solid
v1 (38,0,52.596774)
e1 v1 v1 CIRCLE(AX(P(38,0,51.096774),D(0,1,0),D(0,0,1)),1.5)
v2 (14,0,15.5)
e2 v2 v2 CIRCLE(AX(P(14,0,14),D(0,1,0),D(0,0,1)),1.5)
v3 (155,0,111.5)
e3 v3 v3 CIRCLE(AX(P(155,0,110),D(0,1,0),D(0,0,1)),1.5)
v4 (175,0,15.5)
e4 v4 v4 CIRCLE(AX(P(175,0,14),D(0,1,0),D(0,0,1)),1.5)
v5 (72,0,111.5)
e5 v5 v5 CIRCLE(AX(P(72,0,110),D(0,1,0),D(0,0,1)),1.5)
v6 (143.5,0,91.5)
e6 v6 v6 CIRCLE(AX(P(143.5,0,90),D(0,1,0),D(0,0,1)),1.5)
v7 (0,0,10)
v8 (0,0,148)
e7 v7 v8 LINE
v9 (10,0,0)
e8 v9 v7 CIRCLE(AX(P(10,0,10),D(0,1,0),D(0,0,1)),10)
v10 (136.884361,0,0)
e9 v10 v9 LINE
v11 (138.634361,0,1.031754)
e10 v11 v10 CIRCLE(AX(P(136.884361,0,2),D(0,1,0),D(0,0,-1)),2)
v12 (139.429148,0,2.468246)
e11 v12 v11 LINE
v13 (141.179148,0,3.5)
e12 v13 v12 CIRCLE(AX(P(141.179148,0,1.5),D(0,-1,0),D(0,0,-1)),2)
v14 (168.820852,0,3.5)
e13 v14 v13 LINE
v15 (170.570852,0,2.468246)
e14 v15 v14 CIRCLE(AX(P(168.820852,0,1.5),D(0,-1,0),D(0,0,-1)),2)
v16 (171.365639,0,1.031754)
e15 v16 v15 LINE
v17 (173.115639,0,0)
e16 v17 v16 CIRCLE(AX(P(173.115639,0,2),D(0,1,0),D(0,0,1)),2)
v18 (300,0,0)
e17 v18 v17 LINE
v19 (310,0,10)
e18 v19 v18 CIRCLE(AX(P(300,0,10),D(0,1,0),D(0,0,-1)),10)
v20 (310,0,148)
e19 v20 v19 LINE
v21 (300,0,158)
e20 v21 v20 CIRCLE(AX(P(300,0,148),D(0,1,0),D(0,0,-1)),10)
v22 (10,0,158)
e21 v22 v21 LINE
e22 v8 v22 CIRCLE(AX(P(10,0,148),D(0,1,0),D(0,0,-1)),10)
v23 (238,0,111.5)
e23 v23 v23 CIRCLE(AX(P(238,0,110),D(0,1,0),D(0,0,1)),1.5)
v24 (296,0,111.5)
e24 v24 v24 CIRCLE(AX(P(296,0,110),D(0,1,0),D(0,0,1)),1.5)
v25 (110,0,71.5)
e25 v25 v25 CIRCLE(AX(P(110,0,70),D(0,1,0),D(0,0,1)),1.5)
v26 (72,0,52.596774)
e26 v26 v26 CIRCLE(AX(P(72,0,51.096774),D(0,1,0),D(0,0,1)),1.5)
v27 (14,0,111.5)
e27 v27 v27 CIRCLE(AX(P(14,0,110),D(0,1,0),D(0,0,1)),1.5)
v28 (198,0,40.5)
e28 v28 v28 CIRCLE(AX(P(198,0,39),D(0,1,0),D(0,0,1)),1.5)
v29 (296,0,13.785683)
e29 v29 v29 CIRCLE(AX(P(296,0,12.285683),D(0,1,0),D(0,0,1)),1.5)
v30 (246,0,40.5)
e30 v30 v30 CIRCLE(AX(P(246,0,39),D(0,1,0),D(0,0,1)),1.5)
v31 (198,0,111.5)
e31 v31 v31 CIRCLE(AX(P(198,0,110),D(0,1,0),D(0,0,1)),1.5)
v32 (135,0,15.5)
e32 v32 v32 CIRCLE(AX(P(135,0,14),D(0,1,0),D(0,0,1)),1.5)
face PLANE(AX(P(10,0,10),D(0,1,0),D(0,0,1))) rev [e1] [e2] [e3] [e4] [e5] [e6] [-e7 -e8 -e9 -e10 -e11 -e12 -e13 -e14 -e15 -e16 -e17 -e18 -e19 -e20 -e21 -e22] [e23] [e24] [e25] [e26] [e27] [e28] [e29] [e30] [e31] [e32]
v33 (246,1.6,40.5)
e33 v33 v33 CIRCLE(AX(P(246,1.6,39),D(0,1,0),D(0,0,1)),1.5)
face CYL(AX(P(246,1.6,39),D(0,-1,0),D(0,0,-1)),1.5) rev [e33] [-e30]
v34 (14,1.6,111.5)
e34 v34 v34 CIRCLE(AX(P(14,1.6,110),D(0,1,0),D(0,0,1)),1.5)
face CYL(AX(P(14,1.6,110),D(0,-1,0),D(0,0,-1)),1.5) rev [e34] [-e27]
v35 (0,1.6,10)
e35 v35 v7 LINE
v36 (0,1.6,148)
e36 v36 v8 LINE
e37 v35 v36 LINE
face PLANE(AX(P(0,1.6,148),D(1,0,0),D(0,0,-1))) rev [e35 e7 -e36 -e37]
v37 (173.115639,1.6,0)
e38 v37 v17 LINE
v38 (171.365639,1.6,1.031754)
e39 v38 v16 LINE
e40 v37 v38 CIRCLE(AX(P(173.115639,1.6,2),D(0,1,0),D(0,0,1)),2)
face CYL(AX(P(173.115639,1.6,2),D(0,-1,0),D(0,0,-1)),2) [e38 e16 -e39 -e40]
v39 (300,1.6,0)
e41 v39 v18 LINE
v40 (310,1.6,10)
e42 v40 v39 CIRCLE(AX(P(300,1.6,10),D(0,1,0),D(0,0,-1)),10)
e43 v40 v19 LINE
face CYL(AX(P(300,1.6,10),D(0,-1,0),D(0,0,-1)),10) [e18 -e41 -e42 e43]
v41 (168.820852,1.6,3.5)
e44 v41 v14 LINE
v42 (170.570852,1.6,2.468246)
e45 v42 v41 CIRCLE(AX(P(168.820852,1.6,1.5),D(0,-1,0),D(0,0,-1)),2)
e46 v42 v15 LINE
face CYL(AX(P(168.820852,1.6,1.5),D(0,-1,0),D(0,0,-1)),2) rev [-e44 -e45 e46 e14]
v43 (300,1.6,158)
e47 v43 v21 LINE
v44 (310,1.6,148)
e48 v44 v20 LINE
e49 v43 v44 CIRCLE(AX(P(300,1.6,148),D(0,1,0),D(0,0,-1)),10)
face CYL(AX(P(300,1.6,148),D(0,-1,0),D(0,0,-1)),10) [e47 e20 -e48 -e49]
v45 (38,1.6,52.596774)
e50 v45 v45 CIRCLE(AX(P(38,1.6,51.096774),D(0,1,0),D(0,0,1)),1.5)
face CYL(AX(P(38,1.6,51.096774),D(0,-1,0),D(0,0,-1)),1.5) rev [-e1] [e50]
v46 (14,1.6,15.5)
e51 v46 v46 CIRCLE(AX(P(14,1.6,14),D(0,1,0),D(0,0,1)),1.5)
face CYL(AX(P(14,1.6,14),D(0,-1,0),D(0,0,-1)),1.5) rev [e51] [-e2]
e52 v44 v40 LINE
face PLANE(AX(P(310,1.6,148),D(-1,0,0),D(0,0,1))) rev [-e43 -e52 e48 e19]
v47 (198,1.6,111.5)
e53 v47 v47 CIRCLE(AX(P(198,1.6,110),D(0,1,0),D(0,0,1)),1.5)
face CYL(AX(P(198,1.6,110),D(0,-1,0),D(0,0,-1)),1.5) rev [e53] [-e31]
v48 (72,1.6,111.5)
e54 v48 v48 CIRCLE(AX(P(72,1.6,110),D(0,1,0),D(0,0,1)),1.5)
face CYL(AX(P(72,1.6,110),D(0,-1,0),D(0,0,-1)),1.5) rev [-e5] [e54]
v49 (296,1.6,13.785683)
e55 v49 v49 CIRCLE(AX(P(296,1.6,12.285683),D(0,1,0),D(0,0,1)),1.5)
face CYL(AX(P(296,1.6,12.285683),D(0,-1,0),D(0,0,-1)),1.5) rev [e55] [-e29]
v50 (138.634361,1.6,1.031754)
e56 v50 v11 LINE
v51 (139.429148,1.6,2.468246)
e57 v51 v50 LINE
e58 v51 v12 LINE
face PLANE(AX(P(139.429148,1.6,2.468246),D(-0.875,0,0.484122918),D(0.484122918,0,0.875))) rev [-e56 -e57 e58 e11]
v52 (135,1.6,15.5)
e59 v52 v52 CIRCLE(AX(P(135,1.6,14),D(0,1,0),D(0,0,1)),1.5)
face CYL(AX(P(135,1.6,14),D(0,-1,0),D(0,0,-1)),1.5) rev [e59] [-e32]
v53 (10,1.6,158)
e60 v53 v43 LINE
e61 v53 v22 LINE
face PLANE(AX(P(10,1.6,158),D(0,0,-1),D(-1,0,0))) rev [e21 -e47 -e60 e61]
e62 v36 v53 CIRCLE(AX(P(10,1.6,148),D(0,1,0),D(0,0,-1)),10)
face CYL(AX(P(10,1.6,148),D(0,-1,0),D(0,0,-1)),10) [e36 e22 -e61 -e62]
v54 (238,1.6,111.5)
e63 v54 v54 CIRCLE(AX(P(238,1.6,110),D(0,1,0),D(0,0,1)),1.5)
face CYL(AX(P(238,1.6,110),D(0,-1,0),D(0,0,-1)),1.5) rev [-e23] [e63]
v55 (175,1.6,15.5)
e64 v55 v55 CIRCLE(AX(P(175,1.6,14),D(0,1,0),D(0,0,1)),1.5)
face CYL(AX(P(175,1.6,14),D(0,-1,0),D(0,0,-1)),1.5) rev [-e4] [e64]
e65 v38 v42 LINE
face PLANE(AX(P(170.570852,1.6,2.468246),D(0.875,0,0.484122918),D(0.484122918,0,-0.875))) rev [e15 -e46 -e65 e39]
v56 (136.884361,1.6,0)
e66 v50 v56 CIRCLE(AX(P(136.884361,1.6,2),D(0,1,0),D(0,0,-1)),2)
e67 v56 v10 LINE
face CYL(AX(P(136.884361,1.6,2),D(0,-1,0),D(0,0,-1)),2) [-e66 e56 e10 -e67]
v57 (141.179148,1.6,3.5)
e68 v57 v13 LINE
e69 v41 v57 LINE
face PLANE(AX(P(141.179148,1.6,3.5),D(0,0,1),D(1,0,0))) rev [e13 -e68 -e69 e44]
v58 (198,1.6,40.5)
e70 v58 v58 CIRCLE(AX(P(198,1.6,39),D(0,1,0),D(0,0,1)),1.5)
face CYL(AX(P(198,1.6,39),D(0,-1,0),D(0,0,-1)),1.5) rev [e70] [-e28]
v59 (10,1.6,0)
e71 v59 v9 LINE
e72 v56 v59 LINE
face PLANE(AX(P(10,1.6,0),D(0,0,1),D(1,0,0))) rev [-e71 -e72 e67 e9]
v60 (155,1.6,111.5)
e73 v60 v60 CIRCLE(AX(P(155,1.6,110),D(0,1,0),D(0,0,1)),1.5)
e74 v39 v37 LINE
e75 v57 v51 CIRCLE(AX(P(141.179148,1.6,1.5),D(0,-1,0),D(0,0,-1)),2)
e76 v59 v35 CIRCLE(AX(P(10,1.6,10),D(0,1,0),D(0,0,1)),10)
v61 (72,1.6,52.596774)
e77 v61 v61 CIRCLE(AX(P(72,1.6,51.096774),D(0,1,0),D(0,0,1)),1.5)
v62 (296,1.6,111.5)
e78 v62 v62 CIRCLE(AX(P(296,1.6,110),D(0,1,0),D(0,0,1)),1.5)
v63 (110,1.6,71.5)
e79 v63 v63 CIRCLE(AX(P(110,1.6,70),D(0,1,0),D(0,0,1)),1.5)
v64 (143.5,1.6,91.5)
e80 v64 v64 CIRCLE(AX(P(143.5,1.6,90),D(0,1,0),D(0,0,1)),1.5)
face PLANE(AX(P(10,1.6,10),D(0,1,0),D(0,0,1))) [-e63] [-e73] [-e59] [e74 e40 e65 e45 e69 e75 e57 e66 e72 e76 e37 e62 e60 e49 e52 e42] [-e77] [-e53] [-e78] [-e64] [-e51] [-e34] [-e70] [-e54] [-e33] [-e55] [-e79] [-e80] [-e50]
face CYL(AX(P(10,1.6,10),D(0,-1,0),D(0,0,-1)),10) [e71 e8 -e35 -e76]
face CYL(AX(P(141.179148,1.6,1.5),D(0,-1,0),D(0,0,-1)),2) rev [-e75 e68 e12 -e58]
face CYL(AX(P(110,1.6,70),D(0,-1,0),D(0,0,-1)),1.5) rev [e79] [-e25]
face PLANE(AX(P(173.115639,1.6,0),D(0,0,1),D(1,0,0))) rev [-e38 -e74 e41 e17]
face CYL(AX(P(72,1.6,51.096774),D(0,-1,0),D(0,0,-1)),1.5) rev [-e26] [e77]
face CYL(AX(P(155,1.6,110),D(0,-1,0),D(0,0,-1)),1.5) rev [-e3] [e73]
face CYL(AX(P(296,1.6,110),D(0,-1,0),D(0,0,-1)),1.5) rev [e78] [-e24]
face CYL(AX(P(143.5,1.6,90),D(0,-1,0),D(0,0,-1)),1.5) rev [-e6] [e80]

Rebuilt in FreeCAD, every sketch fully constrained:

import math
import FreeCAD as App
import Part
import Sketcher
Q = App.Units.Quantity

doc = App.newDocument("Part")
body = doc.addObject("PartDesign::Body", "Body")

sketch1 = body.newObject("Sketcher::SketchObject", "Sketch")
sketch1.AttachmentSupport = (doc.getObject("XZ_Plane"), [""])
sketch1.MapMode = "FlatFace"
sketch1.addGeometry(Part.LineSegment(App.Vector(136.884361, 0, 0), App.Vector(10, 0, 0)), False)
sketch1.addGeometry(Part.ArcOfCircle(Part.Circle(App.Vector(10, 10, 0), App.Vector(0, 0, 1), 10), math.radians(180), math.radians(270)), False)
sketch1.addGeometry(Part.LineSegment(App.Vector(0, 10, 0), App.Vector(0, 148, 0)), False)
sketch1.addGeometry(Part.ArcOfCircle(Part.Circle(App.Vector(10, 148, 0), App.Vector(0, 0, 1), 10), math.radians(90), math.radians(180)), False)
sketch1.addGeometry(Part.LineSegment(App.Vector(10, 158, 0), App.Vector(300, 158, 0)), False)
sketch1.addGeometry(Part.ArcOfCircle(Part.Circle(App.Vector(300, 148, 0), App.Vector(0, 0, 1), 10), math.radians(0), math.radians(90)), False)
sketch1.addGeometry(Part.LineSegment(App.Vector(310, 148, 0), App.Vector(310, 10, 0)), False)
sketch1.addGeometry(Part.ArcOfCircle(Part.Circle(App.Vector(300, 10, 0), App.Vector(0, 0, 1), 10), math.radians(-90), math.radians(0)), False)
sketch1.addGeometry(Part.LineSegment(App.Vector(300, 0, 0), App.Vector(173.115639, 0, 0)), False)
sketch1.addGeometry(Part.ArcOfCircle(Part.Circle(App.Vector(173.115639, 2, 0), App.Vector(0, 0, 1), 2), math.radians(-151.044976), math.radians(-90)), False)
sketch1.addGeometry(Part.LineSegment(App.Vector(171.365639, 1.031754, 0), App.Vector(170.570852, 2.468246, 0)), False)
sketch1.addGeometry(Part.ArcOfCircle(Part.Circle(App.Vector(168.820852, 1.5, 0), App.Vector(0, 0, 1), 2), math.radians(28.955024), math.radians(90)), False)
sketch1.addGeometry(Part.LineSegment(App.Vector(168.820852, 3.5, 0), App.Vector(141.179148, 3.5, 0)), False)
sketch1.addGeometry(Part.ArcOfCircle(Part.Circle(App.Vector(141.179148, 1.5, 0), App.Vector(0, 0, 1), 2), math.radians(90), math.radians(151.044976)), False)
sketch1.addGeometry(Part.LineSegment(App.Vector(139.429148, 2.468246, 0), App.Vector(138.634361, 1.031754, 0)), False)
sketch1.addGeometry(Part.ArcOfCircle(Part.Circle(App.Vector(136.884361, 2, 0), App.Vector(0, 0, 1), 2), math.radians(-90), math.radians(-28.955024)), False)
sketch1.addGeometry(Part.Circle(App.Vector(296, 110, 0), App.Vector(0, 0, 1), 1.5), False)
sketch1.addGeometry(Part.Circle(App.Vector(238, 110, 0), App.Vector(0, 0, 1), 1.5), False)
sketch1.addGeometry(Part.Circle(App.Vector(198, 110, 0), App.Vector(0, 0, 1), 1.5), False)
sketch1.addGeometry(Part.Circle(App.Vector(155, 110, 0), App.Vector(0, 0, 1), 1.5), False)
sketch1.addGeometry(Part.Circle(App.Vector(143.5, 90, 0), App.Vector(0, 0, 1), 1.5), False)
sketch1.addGeometry(Part.Circle(App.Vector(72, 110, 0), App.Vector(0, 0, 1), 1.5), False)
sketch1.addGeometry(Part.Circle(App.Vector(14, 110, 0), App.Vector(0, 0, 1), 1.5), False)
sketch1.addGeometry(Part.Circle(App.Vector(110, 70, 0), App.Vector(0, 0, 1), 1.5), False)
sketch1.addGeometry(Part.Circle(App.Vector(246, 39, 0), App.Vector(0, 0, 1), 1.5), False)
sketch1.addGeometry(Part.Circle(App.Vector(198, 39, 0), App.Vector(0, 0, 1), 1.5), False)
sketch1.addGeometry(Part.Circle(App.Vector(296, 12.285683, 0), App.Vector(0, 0, 1), 1.5), False)
sketch1.addGeometry(Part.Circle(App.Vector(175, 14, 0), App.Vector(0, 0, 1), 1.5), False)
sketch1.addGeometry(Part.Circle(App.Vector(72, 51.096774, 0), App.Vector(0, 0, 1), 1.5), False)
sketch1.addGeometry(Part.Circle(App.Vector(38, 51.096774, 0), App.Vector(0, 0, 1), 1.5), False)
sketch1.addGeometry(Part.Circle(App.Vector(135, 14, 0), App.Vector(0, 0, 1), 1.5), False)
sketch1.addGeometry(Part.Circle(App.Vector(14, 14, 0), App.Vector(0, 0, 1), 1.5), False)
sketch1.addConstraint(Sketcher.Constraint("Tangent", 0, 2, 1, 2))
sketch1.addConstraint(Sketcher.Constraint("Tangent", 1, 1, 2, 1))
sketch1.addConstraint(Sketcher.Constraint("Tangent", 2, 2, 3, 2))
sketch1.addConstraint(Sketcher.Constraint("Tangent", 3, 1, 4, 1))
sketch1.addConstraint(Sketcher.Constraint("Tangent", 4, 2, 5, 2))
sketch1.addConstraint(Sketcher.Constraint("Tangent", 5, 1, 6, 1))
sketch1.addConstraint(Sketcher.Constraint("Tangent", 6, 2, 7, 2))
sketch1.addConstraint(Sketcher.Constraint("Tangent", 7, 1, 8, 1))
sketch1.addConstraint(Sketcher.Constraint("Tangent", 8, 2, 9, 2))
sketch1.addConstraint(Sketcher.Constraint("Tangent", 9, 1, 10, 1))
sketch1.addConstraint(Sketcher.Constraint("Tangent", 10, 2, 11, 1))
sketch1.addConstraint(Sketcher.Constraint("Tangent", 11, 2, 12, 1))
sketch1.addConstraint(Sketcher.Constraint("Tangent", 12, 2, 13, 1))
sketch1.addConstraint(Sketcher.Constraint("Tangent", 13, 2, 14, 1))
sketch1.addConstraint(Sketcher.Constraint("Tangent", 14, 2, 15, 2))
sketch1.addConstraint(Sketcher.Constraint("Tangent", 15, 1, 0, 1))
sketch1.addConstraint(Sketcher.Constraint("Horizontal", 0))
sketch1.addConstraint(Sketcher.Constraint("Vertical", 2))
sketch1.addConstraint(Sketcher.Constraint("Horizontal", 4))
sketch1.addConstraint(Sketcher.Constraint("Vertical", 6))
sketch1.addConstraint(Sketcher.Constraint("Horizontal", 8))
sketch1.addConstraint(Sketcher.Constraint("Horizontal", 12))
sketch1.addConstraint(Sketcher.Constraint("Equal", 1, 3))
sketch1.addConstraint(Sketcher.Constraint("Equal", 3, 5))
sketch1.addConstraint(Sketcher.Constraint("Equal", 5, 7))
sketch1.addConstraint(Sketcher.Constraint("Equal", 9, 11))
sketch1.addConstraint(Sketcher.Constraint("Equal", 11, 13))
sketch1.addConstraint(Sketcher.Constraint("Equal", 13, 15))
sketch1.addConstraint(Sketcher.Constraint("Equal", 16, 17))
sketch1.addConstraint(Sketcher.Constraint("Equal", 17, 18))
sketch1.addConstraint(Sketcher.Constraint("Equal", 18, 19))
sketch1.addConstraint(Sketcher.Constraint("Equal", 19, 20))
sketch1.addConstraint(Sketcher.Constraint("Equal", 20, 21))
sketch1.addConstraint(Sketcher.Constraint("Equal", 21, 22))
sketch1.addConstraint(Sketcher.Constraint("Equal", 22, 23))
sketch1.addConstraint(Sketcher.Constraint("Equal", 23, 24))
sketch1.addConstraint(Sketcher.Constraint("Equal", 24, 25))
sketch1.addConstraint(Sketcher.Constraint("Equal", 25, 26))
sketch1.addConstraint(Sketcher.Constraint("Equal", 26, 27))
sketch1.addConstraint(Sketcher.Constraint("Equal", 27, 28))
sketch1.addConstraint(Sketcher.Constraint("Equal", 28, 29))
sketch1.addConstraint(Sketcher.Constraint("Equal", 29, 30))
sketch1.addConstraint(Sketcher.Constraint("Equal", 30, 31))
sketch1.addConstraint(Sketcher.Constraint("PointOnObject", 0, 2, -1))
sketch1.addConstraint(Sketcher.Constraint("PointOnObject", 1, 1, -2))
sketch1.addConstraint(Sketcher.Constraint("PointOnObject", 7, 1, -1))
sketch1.addConstraint(Sketcher.Constraint("Horizontal", 16, 3, 17, 3))
sketch1.addConstraint(Sketcher.Constraint("Horizontal", 17, 3, 18, 3))
sketch1.addConstraint(Sketcher.Constraint("Horizontal", 18, 3, 19, 3))
sketch1.addConstraint(Sketcher.Constraint("Horizontal", 19, 3, 21, 3))
sketch1.addConstraint(Sketcher.Constraint("Horizontal", 21, 3, 22, 3))
sketch1.addConstraint(Sketcher.Constraint("Horizontal", 24, 3, 25, 3))
sketch1.addConstraint(Sketcher.Constraint("Horizontal", 28, 3, 29, 3))
sketch1.addConstraint(Sketcher.Constraint("Horizontal", 27, 3, 30, 3))
sketch1.addConstraint(Sketcher.Constraint("Horizontal", 30, 3, 31, 3))
sketch1.addConstraint(Sketcher.Constraint("Horizontal", 10, 2, 13, 2))
sketch1.addConstraint(Sketcher.Constraint("Vertical", 18, 3, 25, 3))
sketch1.addConstraint(Sketcher.Constraint("Vertical", 16, 3, 26, 3))
sketch1.addConstraint(Sketcher.Constraint("Vertical", 21, 3, 28, 3))
sketch1.addConstraint(Sketcher.Constraint("Vertical", 22, 3, 31, 3))
sketch1.addConstraint(Sketcher.Constraint("Equal", 0, 8))
sketch1.addConstraint(Sketcher.Constraint("Diameter", 16, Q("3 mm")))
sketch1.addConstraint(Sketcher.Constraint("Radius", 1, Q("10 mm")))
sketch1.addConstraint(Sketcher.Constraint("Radius", 9, Q("2 mm")))
sketch1.addConstraint(Sketcher.Constraint("DistanceX", 4, 1, 4, 2, Q("290 mm")))
sketch1.addConstraint(Sketcher.Constraint("DistanceY", 2, 1, 2, 2, Q("138 mm")))
sketch1.addConstraint(Sketcher.Constraint("DistanceX", -1, 1, 16, 3, Q("296 mm")))
sketch1.addConstraint(Sketcher.Constraint("DistanceY", -1, 1, 16, 3, Q("110 mm")))
sketch1.addConstraint(Sketcher.Constraint("DistanceX", -1, 1, 17, 3, Q("238 mm")))
sketch1.addConstraint(Sketcher.Constraint("DistanceX", -1, 1, 18, 3, Q("198 mm")))
sketch1.addConstraint(Sketcher.Constraint("DistanceX", -1, 1, 19, 3, Q("155 mm")))
sketch1.addConstraint(Sketcher.Constraint("DistanceY", -1, 1, 20, 3, Q("90 mm")))
sketch1.addConstraint(Sketcher.Constraint("DistanceX", -1, 1, 21, 3, Q("72 mm")))
sketch1.addConstraint(Sketcher.Constraint("DistanceX", -1, 1, 22, 3, Q("14 mm")))
sketch1.addConstraint(Sketcher.Constraint("DistanceX", -1, 1, 23, 3, Q("110 mm")))
sketch1.addConstraint(Sketcher.Constraint("DistanceY", -1, 1, 23, 3, Q("70 mm")))
sketch1.addConstraint(Sketcher.Constraint("DistanceX", -1, 1, 24, 3, Q("246 mm")))
sketch1.addConstraint(Sketcher.Constraint("DistanceY", -1, 1, 24, 3, Q("39 mm")))
sketch1.addConstraint(Sketcher.Constraint("DistanceX", -1, 1, 27, 3, Q("175 mm")))
sketch1.addConstraint(Sketcher.Constraint("DistanceY", -1, 1, 27, 3, Q("14 mm")))
sketch1.addConstraint(Sketcher.Constraint("DistanceX", -1, 1, 29, 3, Q("38 mm")))
sketch1.addConstraint(Sketcher.Constraint("DistanceX", -1, 1, 30, 3, Q("135 mm")))
sketch1.addConstraint(Sketcher.Constraint("DistanceY", -1, 1, 11, 3, Q("1.5 mm")))
sketch1.addConstraint(Sketcher.Constraint("DistanceX", -1, 1, 20, 3, Q("143.5 mm")))
sketch1.addConstraint(Sketcher.Constraint("DistanceX", 9, 1, 9, 3, Q("1.75 mm")))
sketch1.addConstraint(Sketcher.Constraint("DistanceX", 0, 2, 0, 1, Q("126.884361 mm")))
sketch1.addConstraint(Sketcher.Constraint("DistanceY", -1, 1, 26, 3, Q("12.285683 mm")))
sketch1.addConstraint(Sketcher.Constraint("DistanceY", -1, 1, 28, 3, Q("51.096774 mm")))
pad1 = body.newObject("PartDesign::Pad", "Pad")
pad1.Profile = sketch1
pad1.Length = 1.6
pad1.Reversed = True

doc.recompute()
